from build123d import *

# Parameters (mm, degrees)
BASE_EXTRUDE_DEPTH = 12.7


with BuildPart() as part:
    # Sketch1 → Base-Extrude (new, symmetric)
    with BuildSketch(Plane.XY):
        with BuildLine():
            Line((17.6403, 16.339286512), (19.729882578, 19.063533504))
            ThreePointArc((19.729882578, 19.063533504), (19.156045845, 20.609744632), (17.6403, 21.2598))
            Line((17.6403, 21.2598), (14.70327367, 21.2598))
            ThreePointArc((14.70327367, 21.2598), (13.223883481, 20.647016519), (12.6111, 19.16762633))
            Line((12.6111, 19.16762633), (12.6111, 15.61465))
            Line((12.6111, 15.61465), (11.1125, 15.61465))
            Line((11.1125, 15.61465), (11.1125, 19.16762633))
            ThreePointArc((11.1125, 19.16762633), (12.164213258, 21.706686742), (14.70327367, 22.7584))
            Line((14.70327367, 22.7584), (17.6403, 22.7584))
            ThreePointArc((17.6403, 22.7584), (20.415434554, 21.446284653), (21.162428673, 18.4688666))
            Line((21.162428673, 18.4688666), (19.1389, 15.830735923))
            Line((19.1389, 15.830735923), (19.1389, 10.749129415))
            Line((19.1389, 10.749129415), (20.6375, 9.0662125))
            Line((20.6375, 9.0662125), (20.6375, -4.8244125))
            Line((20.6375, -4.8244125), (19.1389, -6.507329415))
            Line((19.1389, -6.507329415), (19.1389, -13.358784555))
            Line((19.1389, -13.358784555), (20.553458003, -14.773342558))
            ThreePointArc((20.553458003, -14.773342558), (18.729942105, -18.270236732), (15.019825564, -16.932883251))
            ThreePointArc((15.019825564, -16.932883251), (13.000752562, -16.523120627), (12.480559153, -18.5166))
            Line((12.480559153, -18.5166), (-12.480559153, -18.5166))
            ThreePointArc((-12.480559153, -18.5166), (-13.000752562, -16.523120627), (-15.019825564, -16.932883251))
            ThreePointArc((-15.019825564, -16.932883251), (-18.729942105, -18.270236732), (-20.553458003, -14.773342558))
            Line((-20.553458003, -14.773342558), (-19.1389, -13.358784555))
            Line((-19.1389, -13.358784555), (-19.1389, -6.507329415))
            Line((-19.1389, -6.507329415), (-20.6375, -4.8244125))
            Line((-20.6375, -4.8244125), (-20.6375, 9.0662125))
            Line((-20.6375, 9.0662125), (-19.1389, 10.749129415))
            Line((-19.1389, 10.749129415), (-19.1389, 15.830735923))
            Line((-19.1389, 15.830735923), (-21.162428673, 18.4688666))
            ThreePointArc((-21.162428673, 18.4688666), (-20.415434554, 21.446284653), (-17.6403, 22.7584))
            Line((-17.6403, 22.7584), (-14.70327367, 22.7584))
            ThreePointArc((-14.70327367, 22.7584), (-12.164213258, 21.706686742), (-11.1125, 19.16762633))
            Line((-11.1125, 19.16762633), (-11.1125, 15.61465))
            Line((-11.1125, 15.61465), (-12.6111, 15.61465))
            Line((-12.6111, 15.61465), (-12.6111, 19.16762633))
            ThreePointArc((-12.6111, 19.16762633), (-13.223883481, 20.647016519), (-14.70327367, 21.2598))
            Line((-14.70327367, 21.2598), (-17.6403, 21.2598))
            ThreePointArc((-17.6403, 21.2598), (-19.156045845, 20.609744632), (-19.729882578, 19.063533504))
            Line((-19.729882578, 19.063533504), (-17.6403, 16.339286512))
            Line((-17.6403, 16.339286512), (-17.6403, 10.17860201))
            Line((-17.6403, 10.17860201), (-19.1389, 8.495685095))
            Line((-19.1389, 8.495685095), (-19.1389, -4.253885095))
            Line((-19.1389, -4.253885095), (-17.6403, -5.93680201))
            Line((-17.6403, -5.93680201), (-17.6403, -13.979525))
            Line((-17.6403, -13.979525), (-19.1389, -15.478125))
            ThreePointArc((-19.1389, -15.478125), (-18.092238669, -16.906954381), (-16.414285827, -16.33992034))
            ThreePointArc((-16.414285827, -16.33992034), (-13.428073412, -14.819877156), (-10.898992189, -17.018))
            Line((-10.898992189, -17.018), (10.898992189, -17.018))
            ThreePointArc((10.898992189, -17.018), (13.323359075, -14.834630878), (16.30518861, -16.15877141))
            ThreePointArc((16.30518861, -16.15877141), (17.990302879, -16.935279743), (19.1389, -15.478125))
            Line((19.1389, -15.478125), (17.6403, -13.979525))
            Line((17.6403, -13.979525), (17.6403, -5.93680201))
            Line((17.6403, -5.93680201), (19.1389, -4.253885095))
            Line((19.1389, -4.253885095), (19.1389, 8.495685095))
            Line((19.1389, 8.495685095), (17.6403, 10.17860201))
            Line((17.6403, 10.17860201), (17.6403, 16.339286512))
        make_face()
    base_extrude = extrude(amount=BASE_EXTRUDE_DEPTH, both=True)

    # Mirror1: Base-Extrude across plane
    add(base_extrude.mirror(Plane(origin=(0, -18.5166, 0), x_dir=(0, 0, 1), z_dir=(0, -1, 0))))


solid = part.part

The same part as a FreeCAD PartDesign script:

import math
import FreeCAD as App
import Part
import Sketcher
Q = App.Units.Quantity

doc = App.newDocument("Part")
body = doc.addObject("PartDesign::Body", "Body")

# Sketch on XY plane
sketch1 = body.newObject("Sketcher::SketchObject", "Sketch")
sketch1.AttachmentSupport = (doc.getObject("XY_Plane"), [""])
sketch1.MapMode = "FlatFace"
sketch1.addGeometry([
    Part.LineSegment(App.Vector(19.729883, 19.063534, 0), App.Vector(17.6403, 16.339287, 0)),  # 0
    Part.LineSegment(App.Vector(17.6403, 16.339287, 0), App.Vector(17.6403, 10.178602, 0)),  # 1
    Part.LineSegment(App.Vector(17.6403, 10.178602, 0), App.Vector(19.1389, 8.495685, 0)),  # 2
    Part.LineSegment(App.Vector(19.1389, 8.495685, 0), App.Vector(19.1389, -4.253885, 0)),  # 3
    Part.LineSegment(App.Vector(19.1389, -4.253885, 0), App.Vector(17.6403, -5.936802, 0)),  # 4
    Part.LineSegment(App.Vector(17.6403, -5.936802, 0), App.Vector(17.6403, -13.979525, 0)),  # 5
    Part.LineSegment(App.Vector(17.6403, -13.979525, 0), App.Vector(19.1389, -15.478125, 0)),  # 6
    Part.ArcOfCircle(Part.Circle(App.Vector(17.6403, -15.478125, 0), App.Vector(0, 0, 1), 1.4986), math.radians(-152.987287), math.radians(0)),  # 7
    Part.ArcOfCircle(Part.Circle(App.Vector(13.793811, -17.794679, 0), App.Vector(0, 0, 1), 2.9972), math.radians(33.080158), math.radians(164.981274)),  # 8
    Part.LineSegment(App.Vector(10.898992, -17.018, 0), App.Vector(-10.898992, -17.018, 0)),  # 9
    Part.ArcOfCircle(Part.Circle(App.Vector(-13.793811, -17.794679, 0), App.Vector(0, 0, 1), 2.9972), math.radians(15.018726), math.radians(150.963124)),  # 10
    Part.ArcOfCircle(Part.Circle(App.Vector(-17.6403, -15.478125, 0), App.Vector(0, 0, 1), 1.4986), math.radians(180), math.radians(324.895679)),  # 11
    Part.LineSegment(App.Vector(-19.1389, -15.478125, 0), App.Vector(-17.6403, -13.979525, 0)),  # 12
    Part.LineSegment(App.Vector(-17.6403, -13.979525, 0), App.Vector(-17.6403, -5.936802, 0)),  # 13
    Part.LineSegment(App.Vector(-17.6403, -5.936802, 0), App.Vector(-19.1389, -4.253885, 0)),  # 14
    Part.LineSegment(App.Vector(-19.1389, -4.253885, 0), App.Vector(-19.1389, 8.495685, 0)),  # 15
    Part.LineSegment(App.Vector(-19.1389, 8.495685, 0), App.Vector(-17.6403, 10.178602, 0)),  # 16
    Part.LineSegment(App.Vector(-17.6403, 10.178602, 0), App.Vector(-17.6403, 16.339287, 0)),  # 17
    Part.LineSegment(App.Vector(-17.6403, 16.339287, 0), App.Vector(-19.729883, 19.063534, 0)),  # 18
    Part.ArcOfCircle(Part.Circle(App.Vector(-17.6403, 19.167626, 0), App.Vector(0, 0, 1), 2.092174), math.radians(90), math.radians(182.851839)),  # 19
    Part.LineSegment(App.Vector(-17.6403, 21.2598, 0), App.Vector(-14.703274, 21.2598, 0)),  # 20
    Part.ArcOfCircle(Part.Circle(App.Vector(-14.703274, 19.167626, 0), App.Vector(0, 0, 1), 2.092174), math.radians(0), math.radians(90)),  # 21
    Part.LineSegment(App.Vector(-12.6111, 19.167626, 0), App.Vector(-12.6111, 15.61465, 0)),  # 22
    Part.LineSegment(App.Vector(-12.6111, 15.61465, 0), App.Vector(-11.1125, 15.61465, 0)),  # 23
    Part.LineSegment(App.Vector(-11.1125, 15.61465, 0), App.Vector(-11.1125, 19.167626, 0)),  # 24
    Part.ArcOfCircle(Part.Circle(App.Vector(-14.703274, 19.167626, 0), App.Vector(0, 0, 1), 3.590774), math.radians(0), math.radians(90)),  # 25
    Part.LineSegment(App.Vector(-14.703274, 22.7584, 0), App.Vector(-17.6403, 22.7584, 0)),  # 26
    Part.ArcOfCircle(Part.Circle(App.Vector(-17.6403, 19.167626, 0), App.Vector(0, 0, 1), 3.590774), math.radians(90), math.radians(191.221279)),  # 27
    Part.LineSegment(App.Vector(-21.162429, 18.468867, 0), App.Vector(-19.1389, 15.830736, 0)),  # 28
    Part.LineSegment(App.Vector(-19.1389, 15.830736, 0), App.Vector(-19.1389, 10.749129, 0)),  # 29
    Part.LineSegment(App.Vector(-19.1389, 10.749129, 0), App.Vector(-20.6375, 9.066213, 0)),  # 30
    Part.LineSegment(App.Vector(-20.6375, 9.066213, 0), App.Vector(-20.6375, -4.824413, 0)),  # 31
    Part.LineSegment(App.Vector(-20.6375, -4.824413, 0), App.Vector(-19.1389, -6.507329, 0)),  # 32
    Part.LineSegment(App.Vector(-19.1389, -6.507329, 0), App.Vector(-19.1389, -13.358785, 0)),  # 33
    Part.LineSegment(App.Vector(-19.1389, -13.358785, 0), App.Vector(-20.553458, -14.773343, 0)),  # 34
    Part.ArcOfCircle(Part.Circle(App.Vector(-17.6403, -15.478125, 0), App.Vector(0, 0, 1), 2.9972), math.radians(166.399715), math.radians(330.963124)),  # 35
    Part.ArcOfCircle(Part.Circle(App.Vector(-13.793811, -17.794679, 0), App.Vector(0, 0, 1), 1.4986), math.radians(-28.798488), math.radians(144.895679)),  # 36
    Part.LineSegment(App.Vector(-12.480559, -18.5166, 0), App.Vector(12.480559, -18.5166, 0)),  # 37
    Part.ArcOfCircle(Part.Circle(App.Vector(13.793811, -17.794679, 0), App.Vector(0, 0, 1), 1.4986), math.radians(35.104321), math.radians(208.798488)),  # 38
    Part.ArcOfCircle(Part.Circle(App.Vector(17.6403, -15.478125, 0), App.Vector(0, 0, 1), 2.9972), math.radians(-150.963124), math.radians(13.600285)),  # 39
    Part.LineSegment(App.Vector(20.553458, -14.773343, 0), App.Vector(19.1389, -13.358785, 0)),  # 40
    Part.LineSegment(App.Vector(19.1389, -13.358785, 0), App.Vector(19.1389, -6.507329, 0)),  # 41
    Part.LineSegment(App.Vector(19.1389, -6.507329, 0), App.Vector(20.6375, -4.824413, 0)),  # 42
    Part.LineSegment(App.Vector(20.6375, -4.824413, 0), App.Vector(20.6375, 9.066213, 0)),  # 43
    Part.LineSegment(App.Vector(20.6375, 9.066213, 0), App.Vector(19.1389, 10.749129, 0)),  # 44
    Part.LineSegment(App.Vector(19.1389, 10.749129, 0), App.Vector(19.1389, 15.830736, 0)),  # 45
    Part.LineSegment(App.Vector(19.1389, 15.830736, 0), App.Vector(21.162429, 18.468867, 0)),  # 46
    Part.ArcOfCircle(Part.Circle(App.Vector(17.6403, 19.167626, 0), App.Vector(0, 0, 1), 3.590774), math.radians(-11.221279), math.radians(90)),  # 47
    Part.LineSegment(App.Vector(17.6403, 22.7584, 0), App.Vector(14.703274, 22.7584, 0)),  # 48
    Part.ArcOfCircle(Part.Circle(App.Vector(14.703274, 19.167626, 0), App.Vector(0, 0, 1), 3.590774), math.radians(90), math.radians(180)),  # 49
    Part.LineSegment(App.Vector(11.1125, 19.167626, 0), App.Vector(11.1125, 15.61465, 0)),  # 50
    Part.LineSegment(App.Vector(11.1125, 15.61465, 0), App.Vector(12.6111, 15.61465, 0)),  # 51
    Part.LineSegment(App.Vector(12.6111, 15.61465, 0), App.Vector(12.6111, 19.167626, 0)),  # 52
    Part.ArcOfCircle(Part.Circle(App.Vector(14.703274, 19.167626, 0), App.Vector(0, 0, 1), 2.092174), math.radians(90), math.radians(180)),  # 53
    Part.LineSegment(App.Vector(14.703274, 21.2598, 0), App.Vector(17.6403, 21.2598, 0)),  # 54
    Part.ArcOfCircle(Part.Circle(App.Vector(17.6403, 19.167626, 0), App.Vector(0, 0, 1), 2.092174), math.radians(-2.851839), math.radians(90)),  # 55
], False)
sketch1.addConstraint([
    Sketcher.Constraint("Coincident", 0, 2, 1, 1),
    Sketcher.Constraint("Coincident", 1, 2, 2, 1),
    Sketcher.Constraint("Coincident", 2, 2, 3, 1),
    Sketcher.Constraint("Coincident", 3, 2, 4, 1),
    Sketcher.Constraint("Coincident", 4, 2, 5, 1),
    Sketcher.Constraint("Coincident", 5, 2, 6, 1),
    Sketcher.Constraint("Coincident", 6, 2, 7, 2),
    Sketcher.Constraint("Coincident", 7, 1, 8, 1),
    Sketcher.Constraint("Coincident", 8, 2, 9, 1),
    Sketcher.Constraint("Coincident", 9, 2, 10, 1),
    Sketcher.Constraint("Coincident", 10, 2, 11, 2),
    Sketcher.Constraint("Coincident", 11, 1, 12, 1),
    Sketcher.Constraint("Coincident", 12, 2, 13, 1),
    Sketcher.Constraint("Coincident", 13, 2, 14, 1),
    Sketcher.Constraint("Coincident", 14, 2, 15, 1),
    Sketcher.Constraint("Coincident", 15, 2, 16, 1),
    Sketcher.Constraint("Coincident", 16, 2, 17, 1),
    Sketcher.Constraint("Coincident", 17, 2, 18, 1),
    Sketcher.Constraint("Coincident", 18, 2, 19, 2),
    Sketcher.Constraint("Tangent", 19, 1, 20, 1),
    Sketcher.Constraint("Tangent", 20, 2, 21, 2),
    Sketcher.Constraint("Tangent", 21, 1, 22, 1),
    Sketcher.Constraint("Coincident", 22, 2, 23, 1),
    Sketcher.Constraint("Coincident", 23, 2, 24, 1),
    Sketcher.Constraint("Tangent", 24, 2, 25, 1),
    Sketcher.Constraint("Tangent", 25, 2, 26, 1),
    Sketcher.Constraint("Tangent", 26, 2, 27, 1),
    Sketcher.Constraint("Coincident", 27, 2, 28, 1),
    Sketcher.Constraint("Coincident", 28, 2, 29, 1),
    Sketcher.Constraint("Coincident", 29, 2, 30, 1),
    Sketcher.Constraint("Coincident", 30, 2, 31, 1),
    Sketcher.Constraint("Coincident", 31, 2, 32, 1),
    Sketcher.Constraint("Coincident", 32, 2, 33, 1),
    Sketcher.Constraint("Coincident", 33, 2, 34, 1),
    Sketcher.Constraint("Coincident", 34, 2, 35, 1),
    Sketcher.Constraint("Coincident", 35, 2, 36, 2),
    Sketcher.Constraint("Coincident", 36, 1, 37, 1),
    Sketcher.Constraint("Coincident", 37, 2, 38, 2),
    Sketcher.Constraint("Coincident", 38, 1, 39, 1),
    Sketcher.Constraint("Coincident", 39, 2, 40, 1),
    Sketcher.Constraint("Coincident", 40, 2, 41, 1),
    Sketcher.Constraint("Coincident", 41, 2, 42, 1),
    Sketcher.Constraint("Coincident", 42, 2, 43, 1),
    Sketcher.Constraint("Coincident", 43, 2, 44, 1),
    Sketcher.Constraint("Coincident", 44, 2, 45, 1),
    Sketcher.Constraint("Coincident", 45, 2, 46, 1),
    Sketcher.Constraint("Coincident", 46, 2, 47, 1),
    Sketcher.Constraint("Tangent", 47, 2, 48, 1),
    Sketcher.Constraint("Tangent", 48, 2, 49, 1),
    Sketcher.Constraint("Tangent", 49, 2, 50, 1),
    Sketcher.Constraint("Coincident", 50, 2, 51, 1),
    Sketcher.Constraint("Coincident", 51, 2, 52, 1),
    Sketcher.Constraint("Tangent", 52, 2, 53, 2),
    Sketcher.Constraint("Tangent", 53, 1, 54, 1),
    Sketcher.Constraint("Tangent", 54, 2, 55, 2),
    Sketcher.Constraint("Coincident", 55, 1, 0, 1),
    Sketcher.Constraint("Vertical", 1),
    Sketcher.Constraint("Vertical", 3),
    Sketcher.Constraint("Vertical", 5),
    Sketcher.Constraint("Horizontal", 9),
    Sketcher.Constraint("Vertical", 13),
    Sketcher.Constraint("Vertical", 15),
    Sketcher.Constraint("Vertical", 17),
    Sketcher.Constraint("Horizontal", 20),
    Sketcher.Constraint("Vertical", 22),
    Sketcher.Constraint("Horizontal", 23),
    Sketcher.Constraint("Vertical", 24),
    Sketcher.Constraint("Horizontal", 26),
    Sketcher.Constraint("Vertical", 29),
    Sketcher.Constraint("Vertical", 31),
    Sketcher.Constraint("Vertical", 33),
    Sketcher.Constraint("Horizontal", 37),
    Sketcher.Constraint("Vertical", 41),
    Sketcher.Constraint("Vertical", 43),
    Sketcher.Constraint("Vertical", 45),
    Sketcher.Constraint("Horizontal", 48),
    Sketcher.Constraint("Vertical", 50),
    Sketcher.Constraint("Horizontal", 51),
    Sketcher.Constraint("Vertical", 52),
    Sketcher.Constraint("Horizontal", 54),
    Sketcher.Constraint("Coincident", 25, 3, 21, 3),
    Sketcher.Constraint("Coincident", 27, 3, 19, 3),
    Sketcher.Constraint("Coincident", 35, 3, 11, 3),
    Sketcher.Constraint("Coincident", 36, 3, 10, 3),
    Sketcher.Constraint("Coincident", 38, 3, 8, 3),
    Sketcher.Constraint("Coincident", 39, 3, 7, 3),
    Sketcher.Constraint("Coincident", 53, 3, 49, 3),
    Sketcher.Constraint("Coincident", 55, 3, 47, 3),
    Sketcher.Constraint("Equal", 8, 10),
    Sketcher.Constraint("Equal", 7, 11),
    Sketcher.Constraint("Equal", 19, 21),
    Sketcher.Constraint("Equal", 10, 35),
    Sketcher.Constraint("Equal", 11, 36),
    Sketcher.Constraint("Equal", 36, 38),
    Sketcher.Constraint("Equal", 35, 39),
    Sketcher.Constraint("Equal", 27, 47),
    Sketcher.Constraint("Equal", 47, 49),
    Sketcher.Constraint("Equal", 21, 53),
    Sketcher.Constraint("Symmetric", 8, 3, 10, 3, -2),
    Sketcher.Constraint("Symmetric", 7, 3, 11, 3, -2),
    Sketcher.Constraint("Symmetric", 19, 3, 47, 3, -2),
    Sketcher.Constraint("Symmetric", 5, 2, 12, 2, -2),
    Sketcher.Constraint("Symmetric", 3, 2, 14, 2, -2),
    Sketcher.Constraint("Symmetric", 1, 2, 16, 2, -2),
    Sketcher.Constraint("Symmetric", 33, 2, 40, 2, -2),
    Sketcher.Constraint("Symmetric", 31, 2, 42, 2, -2),
    Sketcher.Constraint("Symmetric", 29, 2, 44, 2, -2),
    Sketcher.Constraint("Symmetric", 23, 2, 50, 2, -2),
    Sketcher.Constraint("Perpendicular", 6, 12),
    Sketcher.Constraint("Parallel", 2, 14),
    Sketcher.Constraint("Parallel", 4, 16),
    Sketcher.Constraint("Parallel", 18, 28),
    Sketcher.Constraint("Parallel", 16, 30),
    Sketcher.Constraint("Parallel", 14, 32),
    Sketcher.Constraint("Parallel", 12, 34),
    Sketcher.Constraint("Perpendicular", 34, 40),
    Sketcher.Constraint("Parallel", 30, 42),
    Sketcher.Constraint("Parallel", 32, 44),
    Sketcher.Constraint("Parallel", 0, 46),
    Sketcher.Constraint("Horizontal", 39, 3, 6, 2),
    Sketcher.Constraint("Horizontal", 6, 2, 11, 1),
    Sketcher.Constraint("Horizontal", 4, 2, 13, 2),
    Sketcher.Constraint("Horizontal", 0, 2, 17, 2),
    Sketcher.Constraint("Horizontal", 28, 2, 45, 2),
    Sketcher.Constraint("Horizontal", 27, 2, 46, 2),
    Sketcher.Constraint("Vertical", 11, 3, 19, 3),
    Sketcher.Constraint("Vertical", 55, 3, 0, 2),
    Sketcher.Constraint("Vertical", 1, 2, 4, 2),
    Sketcher.Constraint("Vertical", 3, 2, 6, 2),
    Sketcher.Constraint("Vertical", 15, 2, 28, 2),
    Sketcher.Constraint("Vertical", 29, 2, 32, 2),
    Sketcher.Constraint("Equal", 16, 30),
    Sketcher.Constraint("Radius", 7, Q("0.059 in")),
    Sketcher.Constraint("Radius", 8, Q("0.118 in")),
    Sketcher.Constraint("DistanceX", 23, 1, 23, 2, Q("0.059 in")),
    Sketcher.Constraint("DistanceY", 31, 2, 31, 1, Q("0.546875 in")),
    Sketcher.Constraint("DistanceY", 8, 2, -1, 1, Q("0.67 in")),
    Sketcher.Constraint("DistanceY", 7, 3, -1, 1, Q("0.609375 in")),
    Sketcher.Constraint("DistanceY", -1, 1, 19, 1, Q("0.837 in")),
    Sketcher.Constraint("DistanceX", 23, 2, -1, 1, Q("0.4375 in")),
    Sketcher.Constraint("DistanceX", 30, 2, -1, 1, Q("0.8125 in")),
    Sketcher.Constraint("DistanceY", 36, 1, -1, 1, Q("0.729 in")),
    Sketcher.Constraint("Radius", 19, 2.092174),
    Sketcher.Constraint("DistanceX", 37, 1, 37, 2, 24.961118),
    Sketcher.Constraint("DistanceY", 3, 2, 3, 1, 12.74957),
    Sketcher.Constraint("DistanceX", 9, 2, 9, 1, 21.797984),
    Sketcher.Constraint("DistanceY", 1, 2, 1, 1, 6.160685),
    Sketcher.Constraint("DistanceY", 5, 2, 5, 1, 8.042723),
    Sketcher.Constraint("DistanceY", 22, 2, 22, 1, 3.552976),
    Sketcher.Constraint("DistanceY", 29, 2, 29, 1, 5.081607),
    Sketcher.Constraint("DistanceY", 33, 2, 33, 1, 6.851455),
    Sketcher.Constraint("DistanceX", 27, 2, -1, 1, 21.162429),
    Sketcher.Constraint("DistanceY", -1, 1, 29, 2, 10.749129),
    Sketcher.Constraint("DistanceY", 32, 2, -1, 1, 6.507329),
])
pad1 = body.newObject("PartDesign::Pad", "Pad")
pad1.Profile = sketch1
pad1.Length = Q("1 in")
pad1.Midplane = True
doc.recompute()

datumplane = body.newObject("PartDesign::Plane", "DatumPlane")
datumplane.AttachmentSupport = (doc.getObject("XZ_Plane"), [""])
datumplane.MapMode = "FlatFace"
datumplane.AttachmentOffset = App.Placement(App.Vector(0, 0, 0.729 * 25.4), App.Rotation())
mirrored = body.newObject("PartDesign::Mirrored", "Mirrored")
mirrored.Originals = [pad1]
mirrored.MirrorPlane = (datumplane, [""])
body.Tip = mirrored

doc.recompute()
